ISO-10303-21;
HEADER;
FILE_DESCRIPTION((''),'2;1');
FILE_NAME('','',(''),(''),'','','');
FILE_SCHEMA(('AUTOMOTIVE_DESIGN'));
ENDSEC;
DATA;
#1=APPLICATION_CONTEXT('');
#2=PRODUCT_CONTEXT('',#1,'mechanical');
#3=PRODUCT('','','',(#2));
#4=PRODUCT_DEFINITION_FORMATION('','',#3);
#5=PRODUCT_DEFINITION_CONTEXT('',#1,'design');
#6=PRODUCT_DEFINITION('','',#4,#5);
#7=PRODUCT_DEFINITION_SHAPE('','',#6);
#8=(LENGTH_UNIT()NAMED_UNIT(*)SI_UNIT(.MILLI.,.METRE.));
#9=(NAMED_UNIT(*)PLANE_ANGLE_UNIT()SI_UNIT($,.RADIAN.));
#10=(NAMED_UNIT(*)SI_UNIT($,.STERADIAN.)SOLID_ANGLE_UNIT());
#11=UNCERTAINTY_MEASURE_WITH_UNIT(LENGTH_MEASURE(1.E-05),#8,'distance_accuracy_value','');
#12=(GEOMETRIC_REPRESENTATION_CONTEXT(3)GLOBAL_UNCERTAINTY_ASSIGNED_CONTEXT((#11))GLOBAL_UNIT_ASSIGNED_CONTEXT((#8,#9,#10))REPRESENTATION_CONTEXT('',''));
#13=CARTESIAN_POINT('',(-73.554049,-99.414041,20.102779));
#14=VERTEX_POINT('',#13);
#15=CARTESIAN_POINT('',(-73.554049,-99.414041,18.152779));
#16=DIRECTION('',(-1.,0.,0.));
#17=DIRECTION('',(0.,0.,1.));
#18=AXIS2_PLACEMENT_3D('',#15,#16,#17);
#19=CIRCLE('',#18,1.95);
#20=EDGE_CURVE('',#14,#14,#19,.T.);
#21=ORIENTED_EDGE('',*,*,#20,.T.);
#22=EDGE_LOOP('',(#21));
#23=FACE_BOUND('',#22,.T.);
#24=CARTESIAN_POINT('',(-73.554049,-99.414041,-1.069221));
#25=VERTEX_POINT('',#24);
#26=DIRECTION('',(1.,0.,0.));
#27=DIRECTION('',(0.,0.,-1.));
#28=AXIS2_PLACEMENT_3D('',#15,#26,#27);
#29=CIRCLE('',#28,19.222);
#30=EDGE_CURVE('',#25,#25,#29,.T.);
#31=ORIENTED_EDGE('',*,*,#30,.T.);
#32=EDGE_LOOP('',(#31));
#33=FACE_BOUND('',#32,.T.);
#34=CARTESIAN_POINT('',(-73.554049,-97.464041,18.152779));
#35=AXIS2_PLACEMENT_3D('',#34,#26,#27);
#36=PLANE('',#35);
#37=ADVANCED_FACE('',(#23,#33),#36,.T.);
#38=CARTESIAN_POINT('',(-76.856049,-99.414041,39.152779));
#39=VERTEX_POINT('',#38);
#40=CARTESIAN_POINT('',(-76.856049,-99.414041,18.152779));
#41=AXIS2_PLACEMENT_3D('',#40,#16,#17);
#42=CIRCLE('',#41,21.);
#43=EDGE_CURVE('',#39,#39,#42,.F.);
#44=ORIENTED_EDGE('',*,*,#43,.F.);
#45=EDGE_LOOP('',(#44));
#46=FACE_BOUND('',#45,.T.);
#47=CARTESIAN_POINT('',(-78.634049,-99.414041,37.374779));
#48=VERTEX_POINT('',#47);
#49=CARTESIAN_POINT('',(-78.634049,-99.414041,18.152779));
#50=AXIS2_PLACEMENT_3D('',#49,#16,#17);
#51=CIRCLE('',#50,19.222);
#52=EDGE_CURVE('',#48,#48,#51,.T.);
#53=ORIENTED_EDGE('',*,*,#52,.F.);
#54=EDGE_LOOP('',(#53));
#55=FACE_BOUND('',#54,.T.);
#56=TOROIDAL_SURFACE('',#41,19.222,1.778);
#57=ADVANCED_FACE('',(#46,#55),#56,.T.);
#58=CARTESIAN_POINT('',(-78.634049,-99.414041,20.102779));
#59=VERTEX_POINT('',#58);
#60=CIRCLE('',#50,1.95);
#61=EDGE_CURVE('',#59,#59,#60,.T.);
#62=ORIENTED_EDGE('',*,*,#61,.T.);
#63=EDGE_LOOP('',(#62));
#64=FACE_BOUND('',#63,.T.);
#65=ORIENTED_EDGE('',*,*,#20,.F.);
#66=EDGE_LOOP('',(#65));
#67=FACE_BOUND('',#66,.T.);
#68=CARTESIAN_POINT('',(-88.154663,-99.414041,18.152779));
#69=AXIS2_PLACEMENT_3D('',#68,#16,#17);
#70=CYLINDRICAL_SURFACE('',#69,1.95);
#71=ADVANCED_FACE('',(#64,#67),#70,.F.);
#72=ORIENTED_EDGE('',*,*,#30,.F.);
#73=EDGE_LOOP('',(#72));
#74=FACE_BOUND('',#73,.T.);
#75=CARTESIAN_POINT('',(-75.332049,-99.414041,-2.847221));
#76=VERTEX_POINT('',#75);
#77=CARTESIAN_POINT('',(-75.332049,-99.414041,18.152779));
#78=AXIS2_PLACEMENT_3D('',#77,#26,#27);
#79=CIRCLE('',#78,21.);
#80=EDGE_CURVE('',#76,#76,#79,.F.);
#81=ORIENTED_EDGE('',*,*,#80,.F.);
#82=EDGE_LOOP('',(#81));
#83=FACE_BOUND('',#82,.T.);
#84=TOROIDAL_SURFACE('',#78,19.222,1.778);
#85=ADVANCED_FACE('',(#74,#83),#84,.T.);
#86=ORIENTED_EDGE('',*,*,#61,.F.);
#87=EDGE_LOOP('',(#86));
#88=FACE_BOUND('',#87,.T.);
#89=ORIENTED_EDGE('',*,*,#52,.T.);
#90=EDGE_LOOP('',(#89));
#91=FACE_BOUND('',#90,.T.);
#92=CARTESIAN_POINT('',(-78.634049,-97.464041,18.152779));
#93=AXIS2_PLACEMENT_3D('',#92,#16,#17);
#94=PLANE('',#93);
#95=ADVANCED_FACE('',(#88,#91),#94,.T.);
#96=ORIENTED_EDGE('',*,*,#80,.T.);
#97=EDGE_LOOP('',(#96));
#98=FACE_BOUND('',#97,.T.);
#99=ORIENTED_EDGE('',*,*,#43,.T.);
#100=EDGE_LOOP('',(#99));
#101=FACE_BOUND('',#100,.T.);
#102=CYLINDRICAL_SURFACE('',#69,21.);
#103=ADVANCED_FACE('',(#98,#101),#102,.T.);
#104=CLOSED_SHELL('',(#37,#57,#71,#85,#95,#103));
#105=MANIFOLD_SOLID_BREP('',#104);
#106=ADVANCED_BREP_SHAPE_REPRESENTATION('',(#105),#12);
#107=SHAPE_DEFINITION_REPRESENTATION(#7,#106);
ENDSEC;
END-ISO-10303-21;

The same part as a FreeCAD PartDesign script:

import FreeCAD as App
import Part
import Sketcher
Q = App.Units.Quantity


def edges_at(feature, points):
    """Names of the edges that pass closest to the given points."""
    edges = feature.Shape.Edges
    near = lambda p: min(range(len(edges)), key=lambda i: edges[i].distToShape(Part.Vertex(*p))[0])
    return sorted({f"Edge{near(p) + 1}" for p in points})


def add_polygon(sketch, points):
    """Adds a closed chain of lines whose ends are joined by coincident constraints."""
    first, n = sketch.GeometryCount, len(points)
    for a, b in zip(points, points[1:] + points[:1]):
        sketch.addGeometry(Part.LineSegment(App.Vector(*a, 0), App.Vector(*b, 0)), False)
    for i in range(n):
        sketch.addConstraint(Sketcher.Constraint("Coincident", first + i, 2, first + (i + 1) % n, 1))

doc = App.newDocument("Part")
body = doc.addObject("PartDesign::Body", "Body")

# Sketch on XY plane
sketch1 = body.newObject("Sketcher::SketchObject", "Sketch")
sketch1.AttachmentSupport = (doc.getObject("XY_Plane"), [""])
sketch1.MapMode = "FlatFace"
sketch1.AttachmentOffset = App.Placement(App.Vector(0, 0, 18.152779), App.Rotation())
add_polygon(sketch1, [(-73.554049, -78.414041), (-73.554049, -97.464041), (-78.634049, -97.464041), (-78.634049, -78.414041)])  # lines 0-3
sketch1.addGeometry(Part.LineSegment(App.Vector(-78.634049, -99.414041, 0), App.Vector(-73.554049, -99.414041, 0)), True)  # axis
sketch1.addConstraint(Sketcher.Constraint("Vertical", 0))
sketch1.addConstraint(Sketcher.Constraint("Horizontal", 1))
sketch1.addConstraint(Sketcher.Constraint("Vertical", 2))
sketch1.addConstraint(Sketcher.Constraint("Horizontal", 3))
sketch1.addConstraint(Sketcher.Constraint("Horizontal", 4))
sketch1.addConstraint(Sketcher.Constraint("Vertical", 2, 2, 4, 1))
sketch1.addConstraint(Sketcher.Constraint("Vertical", 3, 2, 4, 2))
sketch1.addConstraint(Sketcher.Constraint("DistanceX", 1, 2, 1, 1, Q("0.2 in")))
sketch1.addConstraint(Sketcher.Constraint("DistanceY", 0, 2, 0, 1, Q("0.75 in")))
sketch1.addConstraint(Sketcher.Constraint("DistanceY", 4, 1, 1, 2, Q("1.95 mm")))
sketch1.addConstraint(Sketcher.Constraint("DistanceX", 0, 2, -1, 1, Q("73.554049 mm")))
sketch1.addConstraint(Sketcher.Constraint("DistanceY", 0, 2, -1, 1, Q("97.464041 mm")))
revolution = body.newObject("PartDesign::Revolution", "Revolution")
revolution.Profile = sketch1
revolution.ReferenceAxis = (sketch1, ["Axis0"])
revolution.Angle = 360
doc.recompute()

fillet = body.newObject("PartDesign::Fillet", "Fillet")
fillet.Base = (revolution, edges_at(revolution, [(-73.554, -120.414, 18.153), (-78.634, -120.414, 18.153)]))
fillet.Radius = Q("0.07 in")

doc.recompute()
